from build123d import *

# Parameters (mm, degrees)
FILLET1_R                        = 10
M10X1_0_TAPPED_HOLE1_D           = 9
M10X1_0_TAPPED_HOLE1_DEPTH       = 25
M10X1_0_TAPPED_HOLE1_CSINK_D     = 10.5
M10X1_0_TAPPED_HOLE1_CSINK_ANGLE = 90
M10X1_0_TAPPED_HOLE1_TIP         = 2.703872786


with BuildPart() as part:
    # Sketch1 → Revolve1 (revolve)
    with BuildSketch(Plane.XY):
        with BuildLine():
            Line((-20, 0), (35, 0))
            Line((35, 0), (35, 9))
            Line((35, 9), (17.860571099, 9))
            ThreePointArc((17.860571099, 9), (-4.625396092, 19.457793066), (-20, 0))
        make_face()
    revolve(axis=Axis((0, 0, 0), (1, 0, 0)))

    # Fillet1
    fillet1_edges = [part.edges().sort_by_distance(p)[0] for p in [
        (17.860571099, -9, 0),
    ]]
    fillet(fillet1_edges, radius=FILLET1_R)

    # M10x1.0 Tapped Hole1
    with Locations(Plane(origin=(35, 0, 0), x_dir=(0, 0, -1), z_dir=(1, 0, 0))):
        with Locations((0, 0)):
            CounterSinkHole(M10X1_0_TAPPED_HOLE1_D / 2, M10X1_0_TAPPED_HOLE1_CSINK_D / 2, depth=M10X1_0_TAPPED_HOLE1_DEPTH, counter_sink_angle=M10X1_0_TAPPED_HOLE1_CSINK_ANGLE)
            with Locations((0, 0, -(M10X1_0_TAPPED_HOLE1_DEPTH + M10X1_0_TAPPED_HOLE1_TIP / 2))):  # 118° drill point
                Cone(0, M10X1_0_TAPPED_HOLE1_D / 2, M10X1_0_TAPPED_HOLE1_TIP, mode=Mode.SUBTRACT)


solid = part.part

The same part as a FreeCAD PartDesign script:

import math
import FreeCAD as App
import Part
import Sketcher
from FreeCAD import Vector


def edges_at(feature, points):
    """Names of the edges that pass closest to the given points."""
    edges = feature.Shape.Edges
    near = lambda p: min(range(len(edges)), key=lambda i: edges[i].distToShape(Part.Vertex(*p))[0])
    return sorted({f"Edge{near(p) + 1}" for p in points})

doc = App.newDocument("Part")
body = doc.addObject("PartDesign::Body", "Body")

sketch1 = body.newObject("Sketcher::SketchObject", "Sketch")
sketch1.AttachmentSupport = (doc.getObject("XY_Plane"), [""])
sketch1.MapMode = "FlatFace"
sketch1.addGeometry([
    Part.LineSegment(Vector(-20, 0, 0), Vector(35, 0, 0)),
    Part.LineSegment(Vector(35, 0, 0), Vector(35, 9, 0)),
    Part.LineSegment(Vector(35, 9, 0), Vector(18, 9, 0)),
    Part.ArcOfCircle(Part.Circle(Vector(0, 0, 0), Vector(0, 0, 1), 20), math.radians(27), math.radians(180)),
], False)
sketch1.addConstraint([
    Sketcher.Constraint("Coincident", 0, 2, 1, 1),
    Sketcher.Constraint("Coincident", 1, 2, 2, 1),
    Sketcher.Constraint("Coincident", 2, 2, 3, 1),
    Sketcher.Constraint("Coincident", 3, 2, 0, 1),
    Sketcher.Constraint("Horizontal", 0),
    Sketcher.Constraint("Vertical", 1),
    Sketcher.Constraint("Horizontal", 2),
    Sketcher.Constraint("Coincident", 3, 3, -1, 1),
    Sketcher.Constraint("PointOnObject", 0, 2, -1),
    Sketcher.Constraint("Radius", 3, 20.0),
    Sketcher.Constraint("DistanceX", 0, 1, 0, 2, 55.0),
    Sketcher.Constraint("DistanceY", 1, 1, 1, 2, 9.0),
])
revolution = body.newObject("PartDesign::Revolution", "Revolution")
revolution.Profile = sketch1
revolution.ReferenceAxis = (sketch1, ["H_Axis"])
revolution.Angle = 360
doc.recompute()

fillet = body.newObject("PartDesign::Fillet", "Fillet")
fillet.Base = (revolution, edges_at(revolution, [(17.861, -9, 0)]))
fillet.Radius = 10

sketch2 = body.newObject("Sketcher::SketchObject", "Sketch001")
sketch2.AttachmentSupport = (doc.getObject("YZ_Plane"), [""])
sketch2.MapMode = "FlatFace"
sketch2.AttachmentOffset = App.Placement(Vector(0, 0, 35), App.Rotation())
sketch2.addGeometry(Part.Circle(Vector(0, 0, 0), Vector(0, 0, 1), 4.5), False)
sketch2.addConstraint([
    Sketcher.Constraint("Coincident", 0, 3, -1, 1),
    Sketcher.Constraint("Diameter", 0, 9.0),
])
doc.recompute()
hole = body.newObject("PartDesign::Hole", "Hole")
hole.Profile = sketch2
hole.ThreadType = "None"
hole.Diameter = 9
hole.DepthType = "Dimension"
hole.Depth = 25
hole.DrillPoint = "Angled"
hole.DrillPointAngle = 118
hole.HoleCutType = "Countersink"
hole.HoleCutDiameter = 10.5
hole.HoleCutCountersinkAngle = 90

doc.recompute()
